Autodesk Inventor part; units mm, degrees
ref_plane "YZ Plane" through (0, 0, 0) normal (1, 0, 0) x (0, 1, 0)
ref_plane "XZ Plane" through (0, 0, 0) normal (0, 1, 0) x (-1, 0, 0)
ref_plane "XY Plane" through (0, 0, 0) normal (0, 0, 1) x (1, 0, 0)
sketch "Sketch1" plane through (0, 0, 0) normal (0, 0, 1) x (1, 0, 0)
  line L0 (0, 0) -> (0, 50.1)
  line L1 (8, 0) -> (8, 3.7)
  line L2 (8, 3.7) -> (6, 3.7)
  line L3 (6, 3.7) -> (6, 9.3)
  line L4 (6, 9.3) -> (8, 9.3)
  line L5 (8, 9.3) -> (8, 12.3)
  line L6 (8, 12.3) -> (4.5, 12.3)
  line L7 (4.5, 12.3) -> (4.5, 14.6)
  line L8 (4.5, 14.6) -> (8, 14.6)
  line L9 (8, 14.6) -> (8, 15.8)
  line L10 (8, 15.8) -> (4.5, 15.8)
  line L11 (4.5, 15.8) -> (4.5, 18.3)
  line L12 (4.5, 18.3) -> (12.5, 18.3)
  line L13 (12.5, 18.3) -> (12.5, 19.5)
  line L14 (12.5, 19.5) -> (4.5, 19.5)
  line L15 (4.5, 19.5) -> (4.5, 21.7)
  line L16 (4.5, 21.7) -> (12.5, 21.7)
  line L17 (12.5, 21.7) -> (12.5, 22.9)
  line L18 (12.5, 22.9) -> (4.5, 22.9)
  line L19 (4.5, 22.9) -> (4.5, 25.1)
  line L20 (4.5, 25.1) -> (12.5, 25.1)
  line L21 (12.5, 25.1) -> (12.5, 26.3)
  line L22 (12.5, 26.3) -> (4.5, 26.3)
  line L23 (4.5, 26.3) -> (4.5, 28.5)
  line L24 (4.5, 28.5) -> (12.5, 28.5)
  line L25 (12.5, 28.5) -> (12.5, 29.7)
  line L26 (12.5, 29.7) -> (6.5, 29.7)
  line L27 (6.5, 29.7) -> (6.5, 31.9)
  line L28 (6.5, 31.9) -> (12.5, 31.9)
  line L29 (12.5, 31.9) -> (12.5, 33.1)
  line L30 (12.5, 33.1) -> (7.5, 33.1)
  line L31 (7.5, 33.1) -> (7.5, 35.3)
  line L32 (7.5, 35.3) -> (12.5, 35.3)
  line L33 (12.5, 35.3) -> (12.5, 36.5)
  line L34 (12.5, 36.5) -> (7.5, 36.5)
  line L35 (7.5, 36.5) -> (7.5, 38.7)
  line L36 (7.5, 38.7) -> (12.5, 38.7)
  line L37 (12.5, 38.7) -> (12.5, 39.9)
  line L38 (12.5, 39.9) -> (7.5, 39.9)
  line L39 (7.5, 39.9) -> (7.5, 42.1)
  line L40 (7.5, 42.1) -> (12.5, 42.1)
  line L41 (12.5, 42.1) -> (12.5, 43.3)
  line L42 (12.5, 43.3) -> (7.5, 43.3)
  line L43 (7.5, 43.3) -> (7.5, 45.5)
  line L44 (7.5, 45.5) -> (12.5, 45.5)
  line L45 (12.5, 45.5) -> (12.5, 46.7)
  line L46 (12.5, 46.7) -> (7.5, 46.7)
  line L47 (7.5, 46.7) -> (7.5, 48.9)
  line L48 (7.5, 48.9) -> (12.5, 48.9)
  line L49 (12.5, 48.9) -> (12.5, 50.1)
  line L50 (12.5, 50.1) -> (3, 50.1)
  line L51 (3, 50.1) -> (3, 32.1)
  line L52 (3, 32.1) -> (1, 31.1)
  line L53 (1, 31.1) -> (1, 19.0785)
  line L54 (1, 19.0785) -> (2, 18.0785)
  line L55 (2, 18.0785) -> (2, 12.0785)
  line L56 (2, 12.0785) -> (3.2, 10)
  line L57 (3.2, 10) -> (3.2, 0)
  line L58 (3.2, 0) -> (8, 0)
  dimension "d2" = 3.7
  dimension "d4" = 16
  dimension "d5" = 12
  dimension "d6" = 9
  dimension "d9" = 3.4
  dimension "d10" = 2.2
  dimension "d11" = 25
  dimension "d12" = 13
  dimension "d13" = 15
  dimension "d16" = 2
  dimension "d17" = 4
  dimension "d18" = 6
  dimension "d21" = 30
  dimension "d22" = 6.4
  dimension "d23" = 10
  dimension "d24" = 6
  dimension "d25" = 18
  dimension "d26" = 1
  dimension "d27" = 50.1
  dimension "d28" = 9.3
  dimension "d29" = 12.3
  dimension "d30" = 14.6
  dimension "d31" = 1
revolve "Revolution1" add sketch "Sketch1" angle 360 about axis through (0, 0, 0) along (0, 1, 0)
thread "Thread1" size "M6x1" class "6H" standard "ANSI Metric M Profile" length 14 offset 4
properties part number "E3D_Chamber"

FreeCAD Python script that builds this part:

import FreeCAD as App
import Part
import Sketcher

V = App.Vector
Q = App.Units.Quantity

doc = App.newDocument("Part")
body = doc.addObject("PartDesign::Body", "Body")

# Sketch on XY plane
sketch1 = body.newObject("Sketcher::SketchObject", "Sketch")
sketch1.AttachmentSupport = (doc.getObject("XY_Plane"), [""])
sketch1.MapMode = "FlatFace"
sketch1.addGeometry([
    Part.LineSegment(V(3.2, 0, 0), V(8, 0, 0)),  # 0
    Part.LineSegment(V(8, 0, 0), V(8, 3.7, 0)),  # 1
    Part.LineSegment(V(8, 3.7, 0), V(6, 3.7, 0)),  # 2
    Part.LineSegment(V(6, 3.7, 0), V(6, 9.3, 0)),  # 3
    Part.LineSegment(V(6, 9.3, 0), V(8, 9.3, 0)),  # 4
    Part.LineSegment(V(8, 9.3, 0), V(8, 12.3, 0)),  # 5
    Part.LineSegment(V(8, 12.3, 0), V(4.5, 12.3, 0)),  # 6
    Part.LineSegment(V(4.5, 12.3, 0), V(4.5, 14.6, 0)),  # 7
    Part.LineSegment(V(4.5, 14.6, 0), V(8, 14.6, 0)),  # 8
    Part.LineSegment(V(8, 14.6, 0), V(8, 15.8, 0)),  # 9
    Part.LineSegment(V(8, 15.8, 0), V(4.5, 15.8, 0)),  # 10
    Part.LineSegment(V(4.5, 15.8, 0), V(4.5, 18.3, 0)),  # 11
    Part.LineSegment(V(4.5, 18.3, 0), V(12.5, 18.3, 0)),  # 12
    Part.LineSegment(V(12.5, 18.3, 0), V(12.5, 19.5, 0)),  # 13
    Part.LineSegment(V(12.5, 19.5, 0), V(4.5, 19.5, 0)),  # 14
    Part.LineSegment(V(4.5, 19.5, 0), V(4.5, 21.7, 0)),  # 15
    Part.LineSegment(V(4.5, 21.7, 0), V(12.5, 21.7, 0)),  # 16
    Part.LineSegment(V(12.5, 21.7, 0), V(12.5, 22.9, 0)),  # 17
    Part.LineSegment(V(12.5, 22.9, 0), V(4.5, 22.9, 0)),  # 18
    Part.LineSegment(V(4.5, 22.9, 0), V(4.5, 25.1, 0)),  # 19
    Part.LineSegment(V(4.5, 25.1, 0), V(12.5, 25.1, 0)),  # 20
    Part.LineSegment(V(12.5, 25.1, 0), V(12.5, 26.3, 0)),  # 21
    Part.LineSegment(V(12.5, 26.3, 0), V(4.5, 26.3, 0)),  # 22
    Part.LineSegment(V(4.5, 26.3, 0), V(4.5, 28.5, 0)),  # 23
    Part.LineSegment(V(4.5, 28.5, 0), V(12.5, 28.5, 0)),  # 24
    Part.LineSegment(V(12.5, 28.5, 0), V(12.5, 29.7, 0)),  # 25
    Part.LineSegment(V(12.5, 29.7, 0), V(6.5, 29.7, 0)),  # 26
    Part.LineSegment(V(6.5, 29.7, 0), V(6.5, 31.9, 0)),  # 27
    Part.LineSegment(V(6.5, 31.9, 0), V(12.5, 31.9, 0)),  # 28
    Part.LineSegment(V(12.5, 31.9, 0), V(12.5, 33.1, 0)),  # 29
    Part.LineSegment(V(12.5, 33.1, 0), V(7.5, 33.1, 0)),  # 30
    Part.LineSegment(V(7.5, 33.1, 0), V(7.5, 35.3, 0)),  # 31
    Part.LineSegment(V(7.5, 35.3, 0), V(12.5, 35.3, 0)),  # 32
    Part.LineSegment(V(12.5, 35.3, 0), V(12.5, 36.5, 0)),  # 33
    Part.LineSegment(V(12.5, 36.5, 0), V(7.5, 36.5, 0)),  # 34
    Part.LineSegment(V(7.5, 36.5, 0), V(7.5, 38.7, 0)),  # 35
    Part.LineSegment(V(7.5, 38.7, 0), V(12.5, 38.7, 0)),  # 36
    Part.LineSegment(V(12.5, 38.7, 0), V(12.5, 39.9, 0)),  # 37
    Part.LineSegment(V(12.5, 39.9, 0), V(7.5, 39.9, 0)),  # 38
    Part.LineSegment(V(7.5, 39.9, 0), V(7.5, 42.1, 0)),  # 39
    Part.LineSegment(V(7.5, 42.1, 0), V(12.5, 42.1, 0)),  # 40
    Part.LineSegment(V(12.5, 42.1, 0), V(12.5, 43.3, 0)),  # 41
    Part.LineSegment(V(12.5, 43.3, 0), V(7.5, 43.3, 0)),  # 42
    Part.LineSegment(V(7.5, 43.3, 0), V(7.5, 45.5, 0)),  # 43
    Part.LineSegment(V(7.5, 45.5, 0), V(12.5, 45.5, 0)),  # 44
    Part.LineSegment(V(12.5, 45.5, 0), V(12.5, 46.7, 0)),  # 45
    Part.LineSegment(V(12.5, 46.7, 0), V(7.5, 46.7, 0)),  # 46
    Part.LineSegment(V(7.5, 46.7, 0), V(7.5, 48.9, 0)),  # 47
    Part.LineSegment(V(7.5, 48.9, 0), V(12.5, 48.9, 0)),  # 48
    Part.LineSegment(V(12.5, 48.9, 0), V(12.5, 50.1, 0)),  # 49
    Part.LineSegment(V(12.5, 50.1, 0), V(3, 50.1, 0)),  # 50
    Part.LineSegment(V(3, 50.1, 0), V(3, 32.1, 0)),  # 51
    Part.LineSegment(V(3, 32.1, 0), V(1, 31.1, 0)),  # 52
    Part.LineSegment(V(1, 31.1, 0), V(1, 19.1, 0)),  # 53
    Part.LineSegment(V(1, 19.1, 0), V(2, 18.1, 0)),  # 54
    Part.LineSegment(V(2, 18.1, 0), V(2, 12.1, 0)),  # 55
    Part.LineSegment(V(2, 12.1, 0), V(3.2, 10, 0)),  # 56
    Part.LineSegment(V(3.2, 10, 0), V(3.2, 0, 0)),  # 57
], False)
sketch1.addConstraint([
    Sketcher.Constraint("Coincident", 0, 2, 1, 1),
    Sketcher.Constraint("Coincident", 1, 2, 2, 1),
    Sketcher.Constraint("Coincident", 2, 2, 3, 1),
    Sketcher.Constraint("Coincident", 3, 2, 4, 1),
    Sketcher.Constraint("Coincident", 4, 2, 5, 1),
    Sketcher.Constraint("Coincident", 5, 2, 6, 1),
    Sketcher.Constraint("Coincident", 6, 2, 7, 1),
    Sketcher.Constraint("Coincident", 7, 2, 8, 1),
    Sketcher.Constraint("Coincident", 8, 2, 9, 1),
    Sketcher.Constraint("Coincident", 9, 2, 10, 1),
    Sketcher.Constraint("Coincident", 10, 2, 11, 1),
    Sketcher.Constraint("Coincident", 11, 2, 12, 1),
    Sketcher.Constraint("Coincident", 12, 2, 13, 1),
    Sketcher.Constraint("Coincident", 13, 2, 14, 1),
    Sketcher.Constraint("Coincident", 14, 2, 15, 1),
    Sketcher.Constraint("Coincident", 15, 2, 16, 1),
    Sketcher.Constraint("Coincident", 16, 2, 17, 1),
    Sketcher.Constraint("Coincident", 17, 2, 18, 1),
    Sketcher.Constraint("Coincident", 18, 2, 19, 1),
    Sketcher.Constraint("Coincident", 19, 2, 20, 1),
    Sketcher.Constraint("Coincident", 20, 2, 21, 1),
    Sketcher.Constraint("Coincident", 21, 2, 22, 1),
    Sketcher.Constraint("Coincident", 22, 2, 23, 1),
    Sketcher.Constraint("Coincident", 23, 2, 24, 1),
    Sketcher.Constraint("Coincident", 24, 2, 25, 1),
    Sketcher.Constraint("Coincident", 25, 2, 26, 1),
    Sketcher.Constraint("Coincident", 26, 2, 27, 1),
    Sketcher.Constraint("Coincident", 27, 2, 28, 1),
    Sketcher.Constraint("Coincident", 28, 2, 29, 1),
    Sketcher.Constraint("Coincident", 29, 2, 30, 1),
    Sketcher.Constraint("Coincident", 30, 2, 31, 1),
    Sketcher.Constraint("Coincident", 31, 2, 32, 1),
    Sketcher.Constraint("Coincident", 32, 2, 33, 1),
    Sketcher.Constraint("Coincident", 33, 2, 34, 1),
    Sketcher.Constraint("Coincident", 34, 2, 35, 1),
    Sketcher.Constraint("Coincident", 35, 2, 36, 1),
    Sketcher.Constraint("Coincident", 36, 2, 37, 1),
    Sketcher.Constraint("Coincident", 37, 2, 38, 1),
    Sketcher.Constraint("Coincident", 38, 2, 39, 1),
    Sketcher.Constraint("Coincident", 39, 2, 40, 1),
    Sketcher.Constraint("Coincident", 40, 2, 41, 1),
    Sketcher.Constraint("Coincident", 41, 2, 42, 1),
    Sketcher.Constraint("Coincident", 42, 2, 43, 1),
    Sketcher.Constraint("Coincident", 43, 2, 44, 1),
    Sketcher.Constraint("Coincident", 44, 2, 45, 1),
    Sketcher.Constraint("Coincident", 45, 2, 46, 1),
    Sketcher.Constraint("Coincident", 46, 2, 47, 1),
    Sketcher.Constraint("Coincident", 47, 2, 48, 1),
    Sketcher.Constraint("Coincident", 48, 2, 49, 1),
    Sketcher.Constraint("Coincident", 49, 2, 50, 1),
    Sketcher.Constraint("Coincident", 50, 2, 51, 1),
    Sketcher.Constraint("Coincident", 51, 2, 52, 1),
    Sketcher.Constraint("Coincident", 52, 2, 53, 1),
    Sketcher.Constraint("Coincident", 53, 2, 54, 1),
    Sketcher.Constraint("Coincident", 54, 2, 55, 1),
    Sketcher.Constraint("Coincident", 55, 2, 56, 1),
    Sketcher.Constraint("Coincident", 56, 2, 57, 1),
    Sketcher.Constraint("Coincident", 57, 2, 0, 1),
    Sketcher.Constraint("Horizontal", 0),
    Sketcher.Constraint("Vertical", 1),
    Sketcher.Constraint("Horizontal", 2),
    Sketcher.Constraint("Vertical", 3),
    Sketcher.Constraint("Horizontal", 4),
    Sketcher.Constraint("Vertical", 5),
    Sketcher.Constraint("Horizontal", 6),
    Sketcher.Constraint("Vertical", 7),
    Sketcher.Constraint("Horizontal", 8),
    Sketcher.Constraint("Vertical", 9),
    Sketcher.Constraint("Horizontal", 10),
    Sketcher.Constraint("Vertical", 11),
    Sketcher.Constraint("Horizontal", 12),
    Sketcher.Constraint("Vertical", 13),
    Sketcher.Constraint("Horizontal", 14),
    Sketcher.Constraint("Vertical", 15),
    Sketcher.Constraint("Horizontal", 16),
    Sketcher.Constraint("Vertical", 17),
    Sketcher.Constraint("Horizontal", 18),
    Sketcher.Constraint("Vertical", 19),
    Sketcher.Constraint("Horizontal", 20),
    Sketcher.Constraint("Vertical", 21),
    Sketcher.Constraint("Horizontal", 22),
    Sketcher.Constraint("Vertical", 23),
    Sketcher.Constraint("Horizontal", 24),
    Sketcher.Constraint("Vertical", 25),
    Sketcher.Constraint("Horizontal", 26),
    Sketcher.Constraint("Vertical", 27),
    Sketcher.Constraint("Horizontal", 28),
    Sketcher.Constraint("Vertical", 29),
    Sketcher.Constraint("Horizontal", 30),
    Sketcher.Constraint("Vertical", 31),
    Sketcher.Constraint("Horizontal", 32),
    Sketcher.Constraint("Vertical", 33),
    Sketcher.Constraint("Horizontal", 34),
    Sketcher.Constraint("Vertical", 35),
    Sketcher.Constraint("Horizontal", 36),
    Sketcher.Constraint("Vertical", 37),
    Sketcher.Constraint("Horizontal", 38),
    Sketcher.Constraint("Vertical", 39),
    Sketcher.Constraint("Horizontal", 40),
    Sketcher.Constraint("Vertical", 41),
    Sketcher.Constraint("Horizontal", 42),
    Sketcher.Constraint("Vertical", 43),
    Sketcher.Constraint("Horizontal", 44),
    Sketcher.Constraint("Vertical", 45),
    Sketcher.Constraint("Horizontal", 46),
    Sketcher.Constraint("Vertical", 47),
    Sketcher.Constraint("Horizontal", 48),
    Sketcher.Constraint("Vertical", 49),
    Sketcher.Constraint("Horizontal", 50),
    Sketcher.Constraint("Vertical", 51),
    Sketcher.Constraint("Vertical", 53),
    Sketcher.Constraint("Vertical", 55),
    Sketcher.Constraint("Vertical", 57),
    Sketcher.Constraint("PointOnObject", 0, 2, -1),
    Sketcher.Constraint("Vertical", 1, 2, 4, 2),
    Sketcher.Constraint("Vertical", 5, 2, 8, 2),
    Sketcher.Constraint("Vertical", 7, 2, 10, 2),
    Sketcher.Constraint("Vertical", 11, 2, 14, 2),
    Sketcher.Constraint("Vertical", 13, 2, 16, 2),
    Sketcher.Constraint("Vertical", 15, 2, 18, 2),
    Sketcher.Constraint("Vertical", 17, 2, 20, 2),
    Sketcher.Constraint("Vertical", 19, 2, 22, 2),
    Sketcher.Constraint("Vertical", 21, 2, 24, 2),
    Sketcher.Constraint("Vertical", 25, 2, 28, 2),
    Sketcher.Constraint("Vertical", 29, 2, 32, 2),
    Sketcher.Constraint("Vertical", 31, 2, 34, 2),
    Sketcher.Constraint("Vertical", 33, 2, 36, 2),
    Sketcher.Constraint("Vertical", 35, 2, 38, 2),
    Sketcher.Constraint("Vertical", 37, 2, 40, 2),
    Sketcher.Constraint("Vertical", 39, 2, 42, 2),
    Sketcher.Constraint("Vertical", 41, 2, 44, 2),
    Sketcher.Constraint("Vertical", 43, 2, 46, 2),
    Sketcher.Constraint("Vertical", 45, 2, 48, 2),
    Sketcher.Constraint("Equal", 9, 13),
    Sketcher.Constraint("Equal", 13, 17),
    Sketcher.Constraint("Equal", 15, 19),
    Sketcher.Constraint("Equal", 17, 21),
    Sketcher.Constraint("Equal", 19, 23),
    Sketcher.Constraint("Equal", 21, 25),
    Sketcher.Constraint("Equal", 23, 27),
    Sketcher.Constraint("Equal", 25, 29),
    Sketcher.Constraint("Equal", 27, 31),
    Sketcher.Constraint("Equal", 29, 33),
    Sketcher.Constraint("Equal", 31, 35),
    Sketcher.Constraint("Equal", 33, 37),
    Sketcher.Constraint("Equal", 35, 39),
    Sketcher.Constraint("Equal", 37, 41),
    Sketcher.Constraint("Equal", 39, 43),
    Sketcher.Constraint("Equal", 41, 45),
    Sketcher.Constraint("Equal", 43, 47),
    Sketcher.Constraint("Equal", 45, 49),
    Sketcher.Constraint("Equal", 28, 55),
    Sketcher.Constraint("DistanceX", 2, 2, 2, 1, Q("2 mm")),
    Sketcher.Constraint("DistanceX", 26, 2, 26, 1, Q("6 mm")),
    Sketcher.Constraint("DistanceY", 51, 2, 51, 1, Q("18 mm")),
    Sketcher.Constraint("DistanceY", 57, 2, 57, 1, Q("10 mm")),
    Sketcher.Constraint("DistanceY", 1, 1, 1, 2, Q("3.7 mm")),
    Sketcher.Constraint("DistanceY", 15, 1, 15, 2, Q("2.2 mm")),
    Sketcher.Constraint("DistanceX", -1, 1, 2, 2, Q("6 mm")),
    Sketcher.Constraint("DistanceX", -1, 1, 52, 2, Q("1 mm")),
    Sketcher.Constraint("DistanceX", -1, 1, 54, 2, Q("2 mm")),
    Sketcher.Constraint("DistanceY", 6, 2, 11, 2, Q("6 mm")),
    Sketcher.Constraint("DistanceX", 23, 2, 26, 2, Q("2 mm")),
    Sketcher.Constraint("DistanceX", 27, 2, 30, 2, Q("1 mm")),
    Sketcher.Constraint("DistanceY", 51, 2, 30, 2, Q("1 mm")),
    Sketcher.Constraint("DistanceX", 52, 2, 51, 2, Q("2 mm")),
    Sketcher.Constraint("DistanceY", 52, 2, 51, 2, Q("1 mm")),
    Sketcher.Constraint("DistanceY", 54, 2, 53, 2, Q("1 mm")),
    Sketcher.Constraint("DistanceY", -1, 1, 3, 2, Q("9.3 mm")),
    Sketcher.Constraint("DistanceY", -1, 1, 5, 2, Q("12.3 mm")),
    Sketcher.Constraint("DistanceY", -1, 1, 7, 2, Q("14.6 mm")),
    Sketcher.Constraint("Angle", 56, Q("-60.0005 deg")),
    Sketcher.Constraint("DistanceX", 0, 1, 0, 2, Q("4.8 mm")),
    Sketcher.Constraint("DistanceX", 6, 2, 6, 1, Q("3.5 mm")),
])
revolution = body.newObject("PartDesign::Revolution", "Revolution")
revolution.Profile = sketch1
revolution.ReferenceAxis = (sketch1, ["V_Axis"])
revolution.Angle = 360

doc.recompute()
